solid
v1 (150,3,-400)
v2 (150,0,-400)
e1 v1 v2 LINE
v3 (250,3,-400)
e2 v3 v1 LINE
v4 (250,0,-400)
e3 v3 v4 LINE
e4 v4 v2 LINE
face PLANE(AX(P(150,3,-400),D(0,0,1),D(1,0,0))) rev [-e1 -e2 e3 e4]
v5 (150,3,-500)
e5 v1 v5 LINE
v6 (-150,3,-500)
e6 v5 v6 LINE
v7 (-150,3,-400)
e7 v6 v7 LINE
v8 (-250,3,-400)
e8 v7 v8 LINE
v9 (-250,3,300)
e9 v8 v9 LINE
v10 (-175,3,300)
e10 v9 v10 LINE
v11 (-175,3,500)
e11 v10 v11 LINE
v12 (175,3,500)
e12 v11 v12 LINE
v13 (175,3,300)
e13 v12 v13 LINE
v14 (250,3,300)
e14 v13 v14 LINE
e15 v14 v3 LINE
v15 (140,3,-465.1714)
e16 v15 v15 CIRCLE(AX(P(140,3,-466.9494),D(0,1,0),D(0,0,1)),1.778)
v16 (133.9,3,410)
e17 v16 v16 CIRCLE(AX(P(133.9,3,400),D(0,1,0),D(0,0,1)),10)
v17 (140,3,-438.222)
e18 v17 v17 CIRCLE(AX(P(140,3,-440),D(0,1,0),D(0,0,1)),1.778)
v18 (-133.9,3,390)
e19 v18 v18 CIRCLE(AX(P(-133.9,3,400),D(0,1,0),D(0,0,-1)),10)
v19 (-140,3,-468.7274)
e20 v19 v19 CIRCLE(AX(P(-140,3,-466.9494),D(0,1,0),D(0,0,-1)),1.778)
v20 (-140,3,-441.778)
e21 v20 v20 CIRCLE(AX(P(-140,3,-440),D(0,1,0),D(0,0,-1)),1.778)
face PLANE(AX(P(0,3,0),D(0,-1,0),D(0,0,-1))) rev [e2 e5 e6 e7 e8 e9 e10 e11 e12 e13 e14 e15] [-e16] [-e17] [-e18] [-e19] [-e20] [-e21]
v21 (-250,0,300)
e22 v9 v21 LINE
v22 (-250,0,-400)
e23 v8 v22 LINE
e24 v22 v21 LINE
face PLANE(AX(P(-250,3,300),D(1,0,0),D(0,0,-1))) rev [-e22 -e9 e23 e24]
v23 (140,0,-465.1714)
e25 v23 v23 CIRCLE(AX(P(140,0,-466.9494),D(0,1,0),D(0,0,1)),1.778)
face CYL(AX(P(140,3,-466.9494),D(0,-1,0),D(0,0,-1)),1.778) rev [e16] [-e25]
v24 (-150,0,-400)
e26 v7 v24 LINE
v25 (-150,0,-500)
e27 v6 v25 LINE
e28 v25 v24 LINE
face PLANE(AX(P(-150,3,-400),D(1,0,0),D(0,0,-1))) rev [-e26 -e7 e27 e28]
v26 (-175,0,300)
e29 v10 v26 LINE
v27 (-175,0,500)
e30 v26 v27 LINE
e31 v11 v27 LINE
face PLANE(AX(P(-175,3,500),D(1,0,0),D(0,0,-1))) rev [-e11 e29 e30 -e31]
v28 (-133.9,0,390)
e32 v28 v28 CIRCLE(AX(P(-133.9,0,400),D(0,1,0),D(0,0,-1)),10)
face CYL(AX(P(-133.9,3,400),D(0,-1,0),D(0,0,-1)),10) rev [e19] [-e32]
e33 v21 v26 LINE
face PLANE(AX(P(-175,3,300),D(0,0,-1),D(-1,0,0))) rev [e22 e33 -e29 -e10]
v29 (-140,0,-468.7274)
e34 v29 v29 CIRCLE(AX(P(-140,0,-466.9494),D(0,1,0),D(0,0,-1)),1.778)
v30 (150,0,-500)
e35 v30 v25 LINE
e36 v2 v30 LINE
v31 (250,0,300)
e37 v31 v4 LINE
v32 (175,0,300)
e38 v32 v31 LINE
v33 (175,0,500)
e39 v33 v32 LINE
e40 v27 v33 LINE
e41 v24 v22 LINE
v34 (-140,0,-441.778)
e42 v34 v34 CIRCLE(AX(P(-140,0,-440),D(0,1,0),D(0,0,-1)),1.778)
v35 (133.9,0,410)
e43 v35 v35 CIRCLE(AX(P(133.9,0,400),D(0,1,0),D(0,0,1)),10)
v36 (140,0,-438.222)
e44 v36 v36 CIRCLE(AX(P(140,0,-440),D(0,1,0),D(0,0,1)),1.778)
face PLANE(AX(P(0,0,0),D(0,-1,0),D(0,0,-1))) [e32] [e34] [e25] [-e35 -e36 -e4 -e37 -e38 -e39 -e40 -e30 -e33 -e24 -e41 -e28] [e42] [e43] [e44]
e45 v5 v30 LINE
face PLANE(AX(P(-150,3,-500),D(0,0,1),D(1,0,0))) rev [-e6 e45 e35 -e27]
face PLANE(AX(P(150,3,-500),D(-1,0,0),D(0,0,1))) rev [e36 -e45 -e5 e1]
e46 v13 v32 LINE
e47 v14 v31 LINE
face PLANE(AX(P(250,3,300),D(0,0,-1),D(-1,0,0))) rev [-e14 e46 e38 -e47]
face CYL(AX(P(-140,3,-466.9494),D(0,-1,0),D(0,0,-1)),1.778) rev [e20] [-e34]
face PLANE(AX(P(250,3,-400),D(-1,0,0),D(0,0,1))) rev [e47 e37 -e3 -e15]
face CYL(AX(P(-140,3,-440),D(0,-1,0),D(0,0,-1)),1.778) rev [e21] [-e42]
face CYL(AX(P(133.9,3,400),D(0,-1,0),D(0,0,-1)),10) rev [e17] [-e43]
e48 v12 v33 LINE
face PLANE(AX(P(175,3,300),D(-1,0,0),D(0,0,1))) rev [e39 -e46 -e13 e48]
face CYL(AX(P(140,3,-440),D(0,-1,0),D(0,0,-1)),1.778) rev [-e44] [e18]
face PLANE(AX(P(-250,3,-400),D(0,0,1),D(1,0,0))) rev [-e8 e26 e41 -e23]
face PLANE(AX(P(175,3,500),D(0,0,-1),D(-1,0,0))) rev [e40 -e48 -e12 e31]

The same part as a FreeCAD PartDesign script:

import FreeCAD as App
import Part
import Sketcher
from FreeCAD import Vector
Q = App.Units.Quantity


def add_polygon(sketch, points):
    """Adds a closed chain of lines whose ends are joined by coincident constraints."""
    first, n = sketch.GeometryCount, len(points)
    for a, b in zip(points, points[1:] + points[:1]):
        sketch.addGeometry(Part.LineSegment(App.Vector(*a, 0), App.Vector(*b, 0)), False)
    for i in range(n):
        sketch.addConstraint(Sketcher.Constraint("Coincident", first + i, 2, first + (i + 1) % n, 1))

doc = App.newDocument("Part")
params = doc.addObject("Spreadsheet::Sheet", "Params")
for row, (alias, value) in enumerate([
    ("sketch1_diameter", "20 mm"),
    ("sketch1_width", "75 mm"),
    ("sketch1_width2", "350 mm"),
    ("sketch1_width3", "100 mm"),
    ("sketch1_height", "700 mm"),
    ("pad1_length", "3 mm"),
], start=1):
    params.set(f"A{row}", alias)
    params.set(f"B{row}", "=" + value)
    params.setAlias(f"B{row}", alias)

body = doc.addObject("PartDesign::Body", "Body")

sketch1 = doc.addObject("Sketcher::SketchObject", "Sketch")
body.addObject(sketch1)
sketch1.AttachmentSupport = (doc.XZ_Plane, [""])
sketch1.MapMode = "FlatFace"
add_polygon(sketch1, [(-250, -400), (-250, 300), (-175, 300), (-175, 500), (175, 500), (175, 300), (250, 300), (250, -400), (150, -400), (150, -500), (-150, -500), (-150, -400)])
sketch1.addGeometry(Part.Circle(Vector(133.9, 400, 0), Vector(0, 0, 1), 10), False)
sketch1.addGeometry(Part.Circle(Vector(-133.9, 400, 0), Vector(0, 0, 1), 10), False)
sketch1.addGeometry(Part.Circle(Vector(140, -440, 0), Vector(0, 0, 1), 1.8), False)
sketch1.addGeometry(Part.Circle(Vector(140, -466.9, 0), Vector(0, 0, 1), 1.8), False)
sketch1.addGeometry(Part.Circle(Vector(-140, -440, 0), Vector(0, 0, 1), 1.8), False)
sketch1.addGeometry(Part.Circle(Vector(-140, -466.9, 0), Vector(0, 0, 1), 1.8), False)
sketch1.addConstraint([
    Sketcher.Constraint("Vertical", 0),
    Sketcher.Constraint("Horizontal", 1),
    Sketcher.Constraint("Vertical", 2),
    Sketcher.Constraint("Horizontal", 3),
    Sketcher.Constraint("Vertical", 4),
    Sketcher.Constraint("Horizontal", 5),
    Sketcher.Constraint("Vertical", 6),
    Sketcher.Constraint("Horizontal", 7),
    Sketcher.Constraint("Vertical", 8),
    Sketcher.Constraint("Horizontal", 9),
    Sketcher.Constraint("Vertical", 10),
    Sketcher.Constraint("Horizontal", 11),
    Sketcher.Constraint("Equal", 12, 13),
    Sketcher.Constraint("Equal", 14, 15),
    Sketcher.Constraint("Equal", 15, 16),
    Sketcher.Constraint("Equal", 16, 17),
    Sketcher.Constraint("Symmetric", 12, 3, 13, 3, -2),
    Sketcher.Constraint("Symmetric", 14, 3, 16, 3, -2),
    Sketcher.Constraint("Symmetric", 15, 3, 17, 3, -2),
    Sketcher.Constraint("Symmetric", 1, 2, 4, 2, -2),
    Sketcher.Constraint("Symmetric", 7, 2, 10, 2, -2),
    Sketcher.Constraint("Vertical", 14, 3, 15, 3),
    Sketcher.Constraint("Equal", 1, 5),
    Sketcher.Constraint("Equal", 11, 8),
    Sketcher.Constraint("Diameter", 12, Q("20 mm")),
    Sketcher.Constraint("DistanceX", 1, 1, 1, 2, Q("75 mm")),
    Sketcher.Constraint("DistanceX", 3, 1, 3, 2, Q("350 mm")),
    Sketcher.Constraint("DistanceX", 7, 2, 7, 1, Q("100 mm")),
    Sketcher.Constraint("DistanceY", 0, 1, 0, 2, Q("700 mm")),
    Sketcher.Constraint("DistanceY", 2, 1, 2, 2, Q("200 mm")),
    Sketcher.Constraint("Diameter", 14, Q("3.556 mm")),
    Sketcher.Constraint("DistanceY", -1, 1, 12, 3, Q("400 mm")),
    Sketcher.Constraint("DistanceX", -1, 1, 14, 3, Q("140 mm")),
    Sketcher.Constraint("DistanceY", 14, 3, -1, 1, Q("440 mm")),
    Sketcher.Constraint("DistanceY", -1, 1, 0, 2, Q("300 mm")),
    Sketcher.Constraint("DistanceX", -1, 1, 12, 3, Q("133.9 mm")),
    Sketcher.Constraint("DistanceY", 15, 3, -1, 1, Q("466.9494 mm")),
])
sketch1.setExpression("Constraints[36]", "Params.sketch1_diameter")
sketch1.setExpression("Constraints[37]", "Params.sketch1_width")
sketch1.setExpression("Constraints[38]", "Params.sketch1_width2")
sketch1.setExpression("Constraints[39]", "Params.sketch1_width3")
sketch1.setExpression("Constraints[40]", "Params.sketch1_height")
pad1 = doc.addObject("PartDesign::Pad", "Pad")
body.addObject(pad1)
pad1.Profile = sketch1
pad1.setExpression("Length", "Params.pad1_length")
pad1.Reversed = True

doc.recompute()
